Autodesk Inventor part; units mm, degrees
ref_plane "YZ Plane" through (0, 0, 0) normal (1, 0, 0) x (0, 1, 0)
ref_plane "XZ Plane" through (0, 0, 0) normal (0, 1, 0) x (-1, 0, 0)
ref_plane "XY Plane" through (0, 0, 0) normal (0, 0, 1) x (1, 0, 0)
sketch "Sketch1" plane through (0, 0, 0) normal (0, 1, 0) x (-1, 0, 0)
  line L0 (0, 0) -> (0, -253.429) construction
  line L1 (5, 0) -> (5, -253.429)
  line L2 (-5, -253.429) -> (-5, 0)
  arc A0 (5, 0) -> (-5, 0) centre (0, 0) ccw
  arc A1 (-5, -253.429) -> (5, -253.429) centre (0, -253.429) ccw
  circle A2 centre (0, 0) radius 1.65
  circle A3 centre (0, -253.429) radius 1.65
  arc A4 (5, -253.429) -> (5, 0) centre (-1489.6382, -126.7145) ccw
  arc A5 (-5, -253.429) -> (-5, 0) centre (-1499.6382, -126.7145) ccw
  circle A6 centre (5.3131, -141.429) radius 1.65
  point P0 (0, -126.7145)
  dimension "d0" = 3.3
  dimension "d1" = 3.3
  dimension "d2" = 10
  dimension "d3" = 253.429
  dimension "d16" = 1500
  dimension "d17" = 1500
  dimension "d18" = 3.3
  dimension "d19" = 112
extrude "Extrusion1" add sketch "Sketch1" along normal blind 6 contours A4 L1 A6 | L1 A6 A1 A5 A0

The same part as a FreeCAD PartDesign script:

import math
import FreeCAD as App
import Part
import Sketcher

V = App.Vector
Q = App.Units.Quantity

doc = App.newDocument("Part")
params = doc.addObject("Spreadsheet::Sheet", "Params")
for row, (alias, value) in enumerate([
    ("sketch1_radius", "1500 mm"),
    ("sketch1_radius2", "5 mm"),
    ("sketch1_diameter", "3.3 mm"),
    ("pad1_length", "6 mm"),
], start=1):
    params.set(f"A{row}", alias)
    params.set(f"B{row}", "=" + value)
    params.setAlias(f"B{row}", alias)

body = doc.addObject("PartDesign::Body", "Body")

# Sketch on XZ plane
sketch1 = doc.addObject("Sketcher::SketchObject", "Sketch")
body.addObject(sketch1)
sketch1.AttachmentSupport = (doc.XZ_Plane, [""])
sketch1.MapMode = "FlatFace"
sketch1.addGeometry([
    Part.ArcOfCircle(Part.Circle(V(1489.6, -126.7, 0), V(0, 0, 1), 1500), math.radians(175.15), math.radians(184.85)),  # 0
    Part.ArcOfCircle(Part.Circle(V(0, 0, 0), V(0, 0, 1), 5), math.radians(0), math.radians(180)),  # 1
    Part.ArcOfCircle(Part.Circle(V(1499.6, -126.7, 0), V(0, 0, 1), 1500), math.radians(175.15), math.radians(184.85)),  # 2
    Part.ArcOfCircle(Part.Circle(V(0, -253.4, 0), V(0, 0, 1), 5), math.radians(180), math.radians(360)),  # 3
    Part.Circle(V(-5.3, -141.4, 0), V(0, 0, 1), 1.6),  # 4
    Part.Circle(V(0, -253.4, 0), V(0, 0, 1), 1.6),  # 5
    Part.Circle(V(0, 0, 0), V(0, 0, 1), 1.6),  # 6
], False)
sketch1.addConstraint([
    Sketcher.Constraint("Coincident", 0, 1, 1, 2),
    Sketcher.Constraint("Coincident", 1, 1, 2, 1),
    Sketcher.Constraint("Coincident", 2, 2, 3, 2),
    Sketcher.Constraint("Coincident", 3, 1, 0, 2),
    Sketcher.Constraint("Coincident", 1, 3, -1, 1),
    Sketcher.Constraint("Coincident", 6, 3, -1, 1),
    Sketcher.Constraint("Coincident", 5, 3, 3, 3),
    Sketcher.Constraint("Equal", 0, 2),
    Sketcher.Constraint("Equal", 1, 3),
    Sketcher.Constraint("Equal", 4, 5),
    Sketcher.Constraint("Equal", 5, 6),
    Sketcher.Constraint("Symmetric", 2, 2, 3, 1, -2),
    Sketcher.Constraint("PointOnObject", 1, 1, -1),
    Sketcher.Constraint("Horizontal", 0, 3, 2, 3),
    Sketcher.Constraint("Radius", 0, Q("1500 mm")),
    Sketcher.Constraint("Radius", 1, Q("5 mm")),
    Sketcher.Constraint("Diameter", 4, Q("3.3 mm")),
    Sketcher.Constraint("DistanceY", 3, 3, 4, 3, Q("112 mm")),
    Sketcher.Constraint("DistanceY", 3, 1, 4, 3, Q("112 mm")),
    Sketcher.Constraint("DistanceY", 3, 3, -1, 1, Q("253.429 mm")),
    Sketcher.Constraint("DistanceX", 4, 3, -1, 1, Q("5.313 mm")),
])
sketch1.setExpression("Constraints[14]", "Params.sketch1_radius")
sketch1.setExpression("Constraints[15]", "Params.sketch1_radius2")
sketch1.setExpression("Constraints[16]", "Params.sketch1_diameter")
pad1 = doc.addObject("PartDesign::Pad", "Pad")
body.addObject(pad1)
pad1.Profile = sketch1
pad1.setExpression("Length", "Params.pad1_length")
pad1.Reversed = True

doc.recompute()
